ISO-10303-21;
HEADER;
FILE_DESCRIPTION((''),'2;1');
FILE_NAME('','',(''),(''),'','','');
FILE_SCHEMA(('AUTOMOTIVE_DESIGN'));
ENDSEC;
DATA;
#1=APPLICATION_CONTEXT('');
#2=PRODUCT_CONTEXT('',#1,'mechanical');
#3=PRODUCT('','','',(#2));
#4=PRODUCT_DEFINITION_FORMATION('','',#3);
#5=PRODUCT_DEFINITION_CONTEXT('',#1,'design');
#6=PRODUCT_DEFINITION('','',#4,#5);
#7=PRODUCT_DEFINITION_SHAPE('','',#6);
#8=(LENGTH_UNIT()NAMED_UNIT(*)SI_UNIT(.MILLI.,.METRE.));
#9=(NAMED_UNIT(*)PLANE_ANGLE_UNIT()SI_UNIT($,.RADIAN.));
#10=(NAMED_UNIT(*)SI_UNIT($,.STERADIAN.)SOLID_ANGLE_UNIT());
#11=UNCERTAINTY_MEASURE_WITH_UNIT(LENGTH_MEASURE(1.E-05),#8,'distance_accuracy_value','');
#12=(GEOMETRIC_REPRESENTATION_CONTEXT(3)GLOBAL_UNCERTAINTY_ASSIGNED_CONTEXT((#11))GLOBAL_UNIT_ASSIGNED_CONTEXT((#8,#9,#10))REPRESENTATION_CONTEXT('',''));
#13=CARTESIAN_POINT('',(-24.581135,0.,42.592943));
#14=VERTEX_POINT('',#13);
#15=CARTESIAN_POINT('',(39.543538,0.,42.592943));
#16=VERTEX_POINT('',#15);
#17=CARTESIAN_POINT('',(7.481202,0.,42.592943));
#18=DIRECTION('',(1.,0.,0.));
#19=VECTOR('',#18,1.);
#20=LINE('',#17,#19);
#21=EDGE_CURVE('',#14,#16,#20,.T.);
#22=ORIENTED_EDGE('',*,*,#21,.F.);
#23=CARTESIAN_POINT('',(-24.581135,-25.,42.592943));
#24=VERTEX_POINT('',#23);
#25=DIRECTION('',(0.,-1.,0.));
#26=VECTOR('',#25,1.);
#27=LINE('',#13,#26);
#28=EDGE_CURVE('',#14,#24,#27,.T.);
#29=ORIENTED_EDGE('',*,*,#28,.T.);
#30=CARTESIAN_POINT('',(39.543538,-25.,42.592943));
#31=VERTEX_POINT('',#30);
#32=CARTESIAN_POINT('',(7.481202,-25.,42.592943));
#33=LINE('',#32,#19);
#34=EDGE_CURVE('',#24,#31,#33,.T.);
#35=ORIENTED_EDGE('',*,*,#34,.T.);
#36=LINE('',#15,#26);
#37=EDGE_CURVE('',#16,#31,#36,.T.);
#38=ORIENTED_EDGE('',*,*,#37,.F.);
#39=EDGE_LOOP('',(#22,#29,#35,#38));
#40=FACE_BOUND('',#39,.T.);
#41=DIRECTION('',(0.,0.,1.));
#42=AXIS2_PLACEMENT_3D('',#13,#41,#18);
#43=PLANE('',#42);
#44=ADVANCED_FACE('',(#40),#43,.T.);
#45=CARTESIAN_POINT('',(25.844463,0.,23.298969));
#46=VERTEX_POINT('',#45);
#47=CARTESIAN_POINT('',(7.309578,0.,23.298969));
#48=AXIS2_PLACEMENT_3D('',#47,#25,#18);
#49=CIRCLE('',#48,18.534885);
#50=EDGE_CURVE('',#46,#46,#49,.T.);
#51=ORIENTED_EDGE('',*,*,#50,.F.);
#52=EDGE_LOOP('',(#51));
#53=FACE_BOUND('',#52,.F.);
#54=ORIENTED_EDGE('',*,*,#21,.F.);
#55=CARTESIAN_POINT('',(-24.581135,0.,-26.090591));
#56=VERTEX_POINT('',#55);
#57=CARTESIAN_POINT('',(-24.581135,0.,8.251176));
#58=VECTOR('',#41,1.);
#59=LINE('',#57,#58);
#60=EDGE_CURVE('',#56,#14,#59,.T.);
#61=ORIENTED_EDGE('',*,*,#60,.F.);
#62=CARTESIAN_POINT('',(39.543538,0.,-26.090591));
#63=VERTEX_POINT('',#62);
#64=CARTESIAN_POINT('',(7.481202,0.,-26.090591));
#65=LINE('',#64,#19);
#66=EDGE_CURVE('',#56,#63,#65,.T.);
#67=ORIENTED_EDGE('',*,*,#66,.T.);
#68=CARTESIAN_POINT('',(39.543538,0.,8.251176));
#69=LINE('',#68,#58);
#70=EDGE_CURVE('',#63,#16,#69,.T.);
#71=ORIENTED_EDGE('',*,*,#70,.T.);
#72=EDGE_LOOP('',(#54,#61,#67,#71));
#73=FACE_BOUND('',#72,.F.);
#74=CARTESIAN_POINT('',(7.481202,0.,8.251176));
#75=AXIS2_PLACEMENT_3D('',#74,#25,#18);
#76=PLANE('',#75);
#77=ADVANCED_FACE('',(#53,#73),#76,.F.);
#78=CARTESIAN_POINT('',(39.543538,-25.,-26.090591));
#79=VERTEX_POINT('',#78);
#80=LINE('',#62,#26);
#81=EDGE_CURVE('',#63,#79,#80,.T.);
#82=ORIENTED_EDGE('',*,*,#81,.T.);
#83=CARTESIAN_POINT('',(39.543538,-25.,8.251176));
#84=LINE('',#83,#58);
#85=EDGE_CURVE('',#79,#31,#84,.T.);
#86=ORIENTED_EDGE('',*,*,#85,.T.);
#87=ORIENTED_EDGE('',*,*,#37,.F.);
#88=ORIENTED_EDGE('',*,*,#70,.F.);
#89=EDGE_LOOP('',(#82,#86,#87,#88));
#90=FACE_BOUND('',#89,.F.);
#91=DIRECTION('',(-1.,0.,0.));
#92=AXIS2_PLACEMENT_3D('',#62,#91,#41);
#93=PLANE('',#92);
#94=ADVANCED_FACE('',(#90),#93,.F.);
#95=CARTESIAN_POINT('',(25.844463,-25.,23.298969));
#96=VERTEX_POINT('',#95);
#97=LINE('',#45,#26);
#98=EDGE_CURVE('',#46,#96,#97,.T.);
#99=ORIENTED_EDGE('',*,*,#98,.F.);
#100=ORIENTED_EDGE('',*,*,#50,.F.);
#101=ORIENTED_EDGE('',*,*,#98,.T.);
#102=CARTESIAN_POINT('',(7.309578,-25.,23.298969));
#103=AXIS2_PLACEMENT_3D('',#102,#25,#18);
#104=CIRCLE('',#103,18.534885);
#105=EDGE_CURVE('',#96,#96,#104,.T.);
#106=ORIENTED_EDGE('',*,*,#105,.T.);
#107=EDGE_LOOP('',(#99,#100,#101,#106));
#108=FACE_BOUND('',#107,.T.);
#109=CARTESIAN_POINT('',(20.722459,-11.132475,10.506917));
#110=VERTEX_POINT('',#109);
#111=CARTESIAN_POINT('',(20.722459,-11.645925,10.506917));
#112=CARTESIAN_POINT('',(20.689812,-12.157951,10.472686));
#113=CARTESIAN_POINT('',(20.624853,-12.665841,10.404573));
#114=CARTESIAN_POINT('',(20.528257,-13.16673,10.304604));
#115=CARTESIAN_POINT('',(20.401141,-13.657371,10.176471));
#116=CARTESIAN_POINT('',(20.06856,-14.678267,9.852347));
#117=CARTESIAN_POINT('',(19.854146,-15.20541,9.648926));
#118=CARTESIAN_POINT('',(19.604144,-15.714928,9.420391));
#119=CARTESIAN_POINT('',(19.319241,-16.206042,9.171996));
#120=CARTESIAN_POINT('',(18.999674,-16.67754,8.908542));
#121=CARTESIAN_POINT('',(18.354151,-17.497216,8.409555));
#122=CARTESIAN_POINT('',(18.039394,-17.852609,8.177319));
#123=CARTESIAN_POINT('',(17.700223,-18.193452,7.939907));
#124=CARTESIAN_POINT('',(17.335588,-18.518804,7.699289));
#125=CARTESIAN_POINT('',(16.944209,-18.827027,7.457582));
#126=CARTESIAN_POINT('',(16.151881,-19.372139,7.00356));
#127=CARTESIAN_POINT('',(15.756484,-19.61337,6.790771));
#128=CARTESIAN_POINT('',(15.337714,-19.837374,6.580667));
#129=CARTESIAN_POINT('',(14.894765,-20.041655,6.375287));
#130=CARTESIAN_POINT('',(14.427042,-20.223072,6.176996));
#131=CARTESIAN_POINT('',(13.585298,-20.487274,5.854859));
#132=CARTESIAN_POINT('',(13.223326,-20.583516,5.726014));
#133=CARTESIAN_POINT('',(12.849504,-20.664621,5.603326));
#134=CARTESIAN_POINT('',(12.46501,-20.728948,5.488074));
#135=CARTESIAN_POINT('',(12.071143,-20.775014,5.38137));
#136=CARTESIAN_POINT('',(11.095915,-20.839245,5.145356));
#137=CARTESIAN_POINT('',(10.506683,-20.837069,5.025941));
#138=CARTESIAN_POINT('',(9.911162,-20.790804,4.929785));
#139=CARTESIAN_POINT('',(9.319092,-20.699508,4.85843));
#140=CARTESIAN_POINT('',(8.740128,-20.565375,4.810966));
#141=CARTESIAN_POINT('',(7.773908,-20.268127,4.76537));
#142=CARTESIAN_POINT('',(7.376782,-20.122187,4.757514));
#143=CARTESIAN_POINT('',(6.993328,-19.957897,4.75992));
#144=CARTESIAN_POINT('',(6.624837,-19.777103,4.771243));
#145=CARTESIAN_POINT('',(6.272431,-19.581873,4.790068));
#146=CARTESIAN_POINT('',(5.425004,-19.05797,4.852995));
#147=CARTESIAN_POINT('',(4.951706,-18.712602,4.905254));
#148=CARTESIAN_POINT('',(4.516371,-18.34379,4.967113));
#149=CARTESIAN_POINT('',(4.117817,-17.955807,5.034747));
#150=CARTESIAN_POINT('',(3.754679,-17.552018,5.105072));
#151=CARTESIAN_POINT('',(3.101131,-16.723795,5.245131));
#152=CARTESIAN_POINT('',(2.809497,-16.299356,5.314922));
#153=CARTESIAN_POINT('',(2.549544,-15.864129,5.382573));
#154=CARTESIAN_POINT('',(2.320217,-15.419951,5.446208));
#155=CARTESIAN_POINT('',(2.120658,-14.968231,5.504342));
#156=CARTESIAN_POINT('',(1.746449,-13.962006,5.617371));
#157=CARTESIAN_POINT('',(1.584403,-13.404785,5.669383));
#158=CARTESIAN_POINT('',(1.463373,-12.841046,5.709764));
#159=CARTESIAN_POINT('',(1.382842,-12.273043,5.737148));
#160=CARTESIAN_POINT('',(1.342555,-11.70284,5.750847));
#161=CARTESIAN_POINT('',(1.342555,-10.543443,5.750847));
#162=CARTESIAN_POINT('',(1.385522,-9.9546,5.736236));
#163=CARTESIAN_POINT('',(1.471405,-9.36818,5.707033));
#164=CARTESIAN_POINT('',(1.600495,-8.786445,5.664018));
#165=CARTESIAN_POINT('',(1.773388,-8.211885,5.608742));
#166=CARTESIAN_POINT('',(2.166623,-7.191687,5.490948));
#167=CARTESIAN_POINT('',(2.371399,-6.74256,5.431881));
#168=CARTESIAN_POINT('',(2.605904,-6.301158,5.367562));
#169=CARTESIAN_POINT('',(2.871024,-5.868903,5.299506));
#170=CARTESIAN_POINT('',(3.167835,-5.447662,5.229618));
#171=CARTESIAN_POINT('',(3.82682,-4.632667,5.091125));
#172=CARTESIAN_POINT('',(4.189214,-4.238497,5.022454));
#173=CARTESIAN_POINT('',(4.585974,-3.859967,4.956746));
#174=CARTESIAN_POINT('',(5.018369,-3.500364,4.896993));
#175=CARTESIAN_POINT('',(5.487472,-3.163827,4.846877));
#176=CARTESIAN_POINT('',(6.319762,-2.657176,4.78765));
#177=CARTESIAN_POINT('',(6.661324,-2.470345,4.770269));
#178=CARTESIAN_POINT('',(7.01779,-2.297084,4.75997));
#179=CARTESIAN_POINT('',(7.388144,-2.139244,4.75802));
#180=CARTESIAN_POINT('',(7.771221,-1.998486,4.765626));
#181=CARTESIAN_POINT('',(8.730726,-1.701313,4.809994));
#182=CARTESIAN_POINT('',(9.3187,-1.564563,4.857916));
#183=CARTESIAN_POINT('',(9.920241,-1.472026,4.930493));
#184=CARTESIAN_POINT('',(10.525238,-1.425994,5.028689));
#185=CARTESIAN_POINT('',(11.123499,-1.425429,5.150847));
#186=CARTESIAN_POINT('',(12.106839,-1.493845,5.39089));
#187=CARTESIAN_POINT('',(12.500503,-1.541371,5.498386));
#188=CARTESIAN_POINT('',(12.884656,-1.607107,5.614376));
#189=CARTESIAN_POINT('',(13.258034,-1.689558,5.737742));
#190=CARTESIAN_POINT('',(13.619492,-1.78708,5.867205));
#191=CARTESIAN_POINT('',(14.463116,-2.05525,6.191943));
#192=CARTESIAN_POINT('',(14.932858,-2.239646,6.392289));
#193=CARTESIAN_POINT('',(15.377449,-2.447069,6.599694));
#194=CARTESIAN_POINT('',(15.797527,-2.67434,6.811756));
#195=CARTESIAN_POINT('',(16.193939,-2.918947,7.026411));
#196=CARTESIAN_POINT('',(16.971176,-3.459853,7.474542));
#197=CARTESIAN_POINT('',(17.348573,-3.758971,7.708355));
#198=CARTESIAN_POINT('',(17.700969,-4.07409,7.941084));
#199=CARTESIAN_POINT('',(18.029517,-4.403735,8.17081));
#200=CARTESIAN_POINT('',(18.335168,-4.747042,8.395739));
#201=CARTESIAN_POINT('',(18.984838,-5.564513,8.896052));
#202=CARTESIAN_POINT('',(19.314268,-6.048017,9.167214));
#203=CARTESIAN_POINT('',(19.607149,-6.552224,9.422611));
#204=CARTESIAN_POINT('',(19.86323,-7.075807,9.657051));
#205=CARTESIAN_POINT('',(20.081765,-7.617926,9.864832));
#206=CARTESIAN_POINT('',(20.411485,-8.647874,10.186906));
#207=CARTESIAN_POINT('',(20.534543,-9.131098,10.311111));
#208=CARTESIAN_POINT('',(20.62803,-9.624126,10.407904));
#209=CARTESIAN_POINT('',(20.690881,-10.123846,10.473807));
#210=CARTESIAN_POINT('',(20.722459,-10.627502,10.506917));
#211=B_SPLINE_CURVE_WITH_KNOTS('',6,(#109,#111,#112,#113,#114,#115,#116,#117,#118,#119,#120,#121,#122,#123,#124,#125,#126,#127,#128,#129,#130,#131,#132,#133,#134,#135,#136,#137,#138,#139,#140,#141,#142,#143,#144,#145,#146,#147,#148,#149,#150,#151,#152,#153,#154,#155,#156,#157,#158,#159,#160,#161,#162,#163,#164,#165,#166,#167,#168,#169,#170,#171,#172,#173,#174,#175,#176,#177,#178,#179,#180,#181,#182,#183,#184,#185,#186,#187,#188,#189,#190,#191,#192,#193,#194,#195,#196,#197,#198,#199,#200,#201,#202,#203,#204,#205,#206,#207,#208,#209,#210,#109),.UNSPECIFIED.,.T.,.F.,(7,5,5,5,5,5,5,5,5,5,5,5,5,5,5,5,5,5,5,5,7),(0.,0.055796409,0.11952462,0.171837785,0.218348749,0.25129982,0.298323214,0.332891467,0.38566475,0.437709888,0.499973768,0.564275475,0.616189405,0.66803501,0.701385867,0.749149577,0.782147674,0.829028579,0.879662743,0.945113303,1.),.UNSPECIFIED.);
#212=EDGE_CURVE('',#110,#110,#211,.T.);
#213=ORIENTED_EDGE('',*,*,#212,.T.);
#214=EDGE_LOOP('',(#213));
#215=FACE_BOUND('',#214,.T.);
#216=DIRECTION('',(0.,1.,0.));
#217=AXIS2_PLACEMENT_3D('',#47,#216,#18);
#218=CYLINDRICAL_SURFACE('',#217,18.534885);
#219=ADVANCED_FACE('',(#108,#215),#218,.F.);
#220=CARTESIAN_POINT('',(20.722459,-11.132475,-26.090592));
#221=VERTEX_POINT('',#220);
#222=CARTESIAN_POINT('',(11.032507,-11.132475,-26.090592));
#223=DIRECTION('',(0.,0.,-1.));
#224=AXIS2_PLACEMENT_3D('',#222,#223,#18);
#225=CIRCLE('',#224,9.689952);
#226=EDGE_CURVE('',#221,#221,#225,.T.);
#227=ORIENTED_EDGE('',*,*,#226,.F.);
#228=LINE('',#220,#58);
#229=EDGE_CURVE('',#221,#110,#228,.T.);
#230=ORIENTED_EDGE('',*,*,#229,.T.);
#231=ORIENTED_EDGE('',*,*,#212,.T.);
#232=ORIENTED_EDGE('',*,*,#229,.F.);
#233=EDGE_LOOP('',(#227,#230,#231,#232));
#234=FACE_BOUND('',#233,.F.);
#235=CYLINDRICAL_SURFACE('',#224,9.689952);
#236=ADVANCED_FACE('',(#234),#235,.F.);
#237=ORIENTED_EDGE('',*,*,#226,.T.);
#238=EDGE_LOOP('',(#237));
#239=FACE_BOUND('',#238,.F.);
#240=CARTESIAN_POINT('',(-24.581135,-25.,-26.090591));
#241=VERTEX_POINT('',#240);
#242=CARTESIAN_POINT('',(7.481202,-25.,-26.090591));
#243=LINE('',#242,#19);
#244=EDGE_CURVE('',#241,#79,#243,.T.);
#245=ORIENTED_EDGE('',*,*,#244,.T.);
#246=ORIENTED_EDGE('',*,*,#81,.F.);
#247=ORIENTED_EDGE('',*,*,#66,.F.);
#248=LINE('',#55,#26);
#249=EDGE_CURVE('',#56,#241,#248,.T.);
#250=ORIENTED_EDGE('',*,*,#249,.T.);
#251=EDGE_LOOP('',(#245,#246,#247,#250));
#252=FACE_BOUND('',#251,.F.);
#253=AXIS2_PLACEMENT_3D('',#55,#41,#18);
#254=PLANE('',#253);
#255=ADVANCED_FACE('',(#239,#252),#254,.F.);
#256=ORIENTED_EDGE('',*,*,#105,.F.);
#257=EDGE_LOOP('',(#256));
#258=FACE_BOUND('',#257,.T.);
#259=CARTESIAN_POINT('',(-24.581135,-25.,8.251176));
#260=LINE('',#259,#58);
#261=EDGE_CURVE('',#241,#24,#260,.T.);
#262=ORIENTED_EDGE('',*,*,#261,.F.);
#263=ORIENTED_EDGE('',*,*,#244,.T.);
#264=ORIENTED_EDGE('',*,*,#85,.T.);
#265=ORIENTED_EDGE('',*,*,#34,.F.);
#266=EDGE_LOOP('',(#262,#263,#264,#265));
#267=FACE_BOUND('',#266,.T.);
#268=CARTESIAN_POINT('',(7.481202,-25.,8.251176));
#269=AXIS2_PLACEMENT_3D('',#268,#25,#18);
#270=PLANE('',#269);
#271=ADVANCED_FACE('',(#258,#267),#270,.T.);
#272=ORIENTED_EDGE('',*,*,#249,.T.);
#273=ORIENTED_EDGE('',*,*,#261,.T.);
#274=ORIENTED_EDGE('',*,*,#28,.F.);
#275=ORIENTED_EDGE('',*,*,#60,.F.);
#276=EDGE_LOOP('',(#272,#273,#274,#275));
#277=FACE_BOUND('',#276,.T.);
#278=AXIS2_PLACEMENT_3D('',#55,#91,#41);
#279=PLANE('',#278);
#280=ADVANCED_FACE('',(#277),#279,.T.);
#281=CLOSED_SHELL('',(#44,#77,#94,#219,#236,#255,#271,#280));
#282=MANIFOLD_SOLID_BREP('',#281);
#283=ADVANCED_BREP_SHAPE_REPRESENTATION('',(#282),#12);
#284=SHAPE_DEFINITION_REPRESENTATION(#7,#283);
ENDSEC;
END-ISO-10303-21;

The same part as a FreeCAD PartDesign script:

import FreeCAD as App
import Part
import Sketcher
from FreeCAD import Vector


def add_polygon(sketch, points):
    """Adds a closed chain of lines whose ends are joined by coincident constraints."""
    first, n = sketch.GeometryCount, len(points)
    for a, b in zip(points, points[1:] + points[:1]):
        sketch.addGeometry(Part.LineSegment(App.Vector(*a, 0), App.Vector(*b, 0)), False)
    for i in range(n):
        sketch.addConstraint(Sketcher.Constraint("Coincident", first + i, 2, first + (i + 1) % n, 1))

doc = App.newDocument("Part")
body = doc.addObject("PartDesign::Body", "Body")

sketch1 = doc.addObject("Sketcher::SketchObject", "Sketch")
body.addObject(sketch1)
sketch1.AttachmentSupport = (doc.XZ_Plane, [""])
sketch1.MapMode = "FlatFace"
add_polygon(sketch1, [(-25, 43), (-25, -26), (40, -26), (40, 43)])
sketch1.addGeometry(Part.Circle(Vector(7, 23, 0), Vector(0, 0, 1), 19), False)
sketch1.addConstraint(Sketcher.Constraint("Vertical", 0))
sketch1.addConstraint(Sketcher.Constraint("Horizontal", 1))
sketch1.addConstraint(Sketcher.Constraint("Vertical", 2))
sketch1.addConstraint(Sketcher.Constraint("Horizontal", 3))
sketch1.addConstraint(Sketcher.Constraint("Diameter", 4, 37.06977))
sketch1.addConstraint(Sketcher.Constraint("DistanceX", 1, 1, 1, 2, 64.124673))
sketch1.addConstraint(Sketcher.Constraint("DistanceY", 0, 2, 0, 1, 68.683535))
sketch1.addConstraint(Sketcher.Constraint("DistanceY", -1, 1, 4, 3, 23.298969))
sketch1.addConstraint(Sketcher.Constraint("DistanceY", 0, 2, -1, 1, 26.090591))
sketch1.addConstraint(Sketcher.Constraint("DistanceX", -1, 1, 1, 2, 39.543538))
sketch1.addConstraint(Sketcher.Constraint("DistanceX", 4, 3, 1, 2, 32.23396))
pad1 = doc.addObject("PartDesign::Pad", "Pad")
body.addObject(pad1)
pad1.Profile = sketch1
pad1.Length = 25

sketch2 = doc.addObject("Sketcher::SketchObject", "Sketch001")
body.addObject(sketch2)
sketch2.AttachmentSupport = (doc.XY_Plane, [""])
sketch2.MapMode = "FlatFace"
sketch2.AttachmentOffset = App.Placement(Vector(0, 0, -26.090592), App.Rotation())
sketch2.addGeometry(Part.Circle(Vector(11, -11, 0), Vector(0, 0, 1), 10), False)
sketch2.addConstraint(Sketcher.Constraint("Diameter", 0, 19.379904))
sketch2.addConstraint(Sketcher.Constraint("DistanceX", -1, 1, 0, 3, 11.032507))
sketch2.addConstraint(Sketcher.Constraint("DistanceY", 0, 3, -1, 1, 11.132475))
pocket1 = doc.addObject("PartDesign::Pocket", "Pocket")
body.addObject(pocket1)
pocket1.Profile = sketch2
pocket1.Length = 40
pocket1.Reversed = True

doc.recompute()
